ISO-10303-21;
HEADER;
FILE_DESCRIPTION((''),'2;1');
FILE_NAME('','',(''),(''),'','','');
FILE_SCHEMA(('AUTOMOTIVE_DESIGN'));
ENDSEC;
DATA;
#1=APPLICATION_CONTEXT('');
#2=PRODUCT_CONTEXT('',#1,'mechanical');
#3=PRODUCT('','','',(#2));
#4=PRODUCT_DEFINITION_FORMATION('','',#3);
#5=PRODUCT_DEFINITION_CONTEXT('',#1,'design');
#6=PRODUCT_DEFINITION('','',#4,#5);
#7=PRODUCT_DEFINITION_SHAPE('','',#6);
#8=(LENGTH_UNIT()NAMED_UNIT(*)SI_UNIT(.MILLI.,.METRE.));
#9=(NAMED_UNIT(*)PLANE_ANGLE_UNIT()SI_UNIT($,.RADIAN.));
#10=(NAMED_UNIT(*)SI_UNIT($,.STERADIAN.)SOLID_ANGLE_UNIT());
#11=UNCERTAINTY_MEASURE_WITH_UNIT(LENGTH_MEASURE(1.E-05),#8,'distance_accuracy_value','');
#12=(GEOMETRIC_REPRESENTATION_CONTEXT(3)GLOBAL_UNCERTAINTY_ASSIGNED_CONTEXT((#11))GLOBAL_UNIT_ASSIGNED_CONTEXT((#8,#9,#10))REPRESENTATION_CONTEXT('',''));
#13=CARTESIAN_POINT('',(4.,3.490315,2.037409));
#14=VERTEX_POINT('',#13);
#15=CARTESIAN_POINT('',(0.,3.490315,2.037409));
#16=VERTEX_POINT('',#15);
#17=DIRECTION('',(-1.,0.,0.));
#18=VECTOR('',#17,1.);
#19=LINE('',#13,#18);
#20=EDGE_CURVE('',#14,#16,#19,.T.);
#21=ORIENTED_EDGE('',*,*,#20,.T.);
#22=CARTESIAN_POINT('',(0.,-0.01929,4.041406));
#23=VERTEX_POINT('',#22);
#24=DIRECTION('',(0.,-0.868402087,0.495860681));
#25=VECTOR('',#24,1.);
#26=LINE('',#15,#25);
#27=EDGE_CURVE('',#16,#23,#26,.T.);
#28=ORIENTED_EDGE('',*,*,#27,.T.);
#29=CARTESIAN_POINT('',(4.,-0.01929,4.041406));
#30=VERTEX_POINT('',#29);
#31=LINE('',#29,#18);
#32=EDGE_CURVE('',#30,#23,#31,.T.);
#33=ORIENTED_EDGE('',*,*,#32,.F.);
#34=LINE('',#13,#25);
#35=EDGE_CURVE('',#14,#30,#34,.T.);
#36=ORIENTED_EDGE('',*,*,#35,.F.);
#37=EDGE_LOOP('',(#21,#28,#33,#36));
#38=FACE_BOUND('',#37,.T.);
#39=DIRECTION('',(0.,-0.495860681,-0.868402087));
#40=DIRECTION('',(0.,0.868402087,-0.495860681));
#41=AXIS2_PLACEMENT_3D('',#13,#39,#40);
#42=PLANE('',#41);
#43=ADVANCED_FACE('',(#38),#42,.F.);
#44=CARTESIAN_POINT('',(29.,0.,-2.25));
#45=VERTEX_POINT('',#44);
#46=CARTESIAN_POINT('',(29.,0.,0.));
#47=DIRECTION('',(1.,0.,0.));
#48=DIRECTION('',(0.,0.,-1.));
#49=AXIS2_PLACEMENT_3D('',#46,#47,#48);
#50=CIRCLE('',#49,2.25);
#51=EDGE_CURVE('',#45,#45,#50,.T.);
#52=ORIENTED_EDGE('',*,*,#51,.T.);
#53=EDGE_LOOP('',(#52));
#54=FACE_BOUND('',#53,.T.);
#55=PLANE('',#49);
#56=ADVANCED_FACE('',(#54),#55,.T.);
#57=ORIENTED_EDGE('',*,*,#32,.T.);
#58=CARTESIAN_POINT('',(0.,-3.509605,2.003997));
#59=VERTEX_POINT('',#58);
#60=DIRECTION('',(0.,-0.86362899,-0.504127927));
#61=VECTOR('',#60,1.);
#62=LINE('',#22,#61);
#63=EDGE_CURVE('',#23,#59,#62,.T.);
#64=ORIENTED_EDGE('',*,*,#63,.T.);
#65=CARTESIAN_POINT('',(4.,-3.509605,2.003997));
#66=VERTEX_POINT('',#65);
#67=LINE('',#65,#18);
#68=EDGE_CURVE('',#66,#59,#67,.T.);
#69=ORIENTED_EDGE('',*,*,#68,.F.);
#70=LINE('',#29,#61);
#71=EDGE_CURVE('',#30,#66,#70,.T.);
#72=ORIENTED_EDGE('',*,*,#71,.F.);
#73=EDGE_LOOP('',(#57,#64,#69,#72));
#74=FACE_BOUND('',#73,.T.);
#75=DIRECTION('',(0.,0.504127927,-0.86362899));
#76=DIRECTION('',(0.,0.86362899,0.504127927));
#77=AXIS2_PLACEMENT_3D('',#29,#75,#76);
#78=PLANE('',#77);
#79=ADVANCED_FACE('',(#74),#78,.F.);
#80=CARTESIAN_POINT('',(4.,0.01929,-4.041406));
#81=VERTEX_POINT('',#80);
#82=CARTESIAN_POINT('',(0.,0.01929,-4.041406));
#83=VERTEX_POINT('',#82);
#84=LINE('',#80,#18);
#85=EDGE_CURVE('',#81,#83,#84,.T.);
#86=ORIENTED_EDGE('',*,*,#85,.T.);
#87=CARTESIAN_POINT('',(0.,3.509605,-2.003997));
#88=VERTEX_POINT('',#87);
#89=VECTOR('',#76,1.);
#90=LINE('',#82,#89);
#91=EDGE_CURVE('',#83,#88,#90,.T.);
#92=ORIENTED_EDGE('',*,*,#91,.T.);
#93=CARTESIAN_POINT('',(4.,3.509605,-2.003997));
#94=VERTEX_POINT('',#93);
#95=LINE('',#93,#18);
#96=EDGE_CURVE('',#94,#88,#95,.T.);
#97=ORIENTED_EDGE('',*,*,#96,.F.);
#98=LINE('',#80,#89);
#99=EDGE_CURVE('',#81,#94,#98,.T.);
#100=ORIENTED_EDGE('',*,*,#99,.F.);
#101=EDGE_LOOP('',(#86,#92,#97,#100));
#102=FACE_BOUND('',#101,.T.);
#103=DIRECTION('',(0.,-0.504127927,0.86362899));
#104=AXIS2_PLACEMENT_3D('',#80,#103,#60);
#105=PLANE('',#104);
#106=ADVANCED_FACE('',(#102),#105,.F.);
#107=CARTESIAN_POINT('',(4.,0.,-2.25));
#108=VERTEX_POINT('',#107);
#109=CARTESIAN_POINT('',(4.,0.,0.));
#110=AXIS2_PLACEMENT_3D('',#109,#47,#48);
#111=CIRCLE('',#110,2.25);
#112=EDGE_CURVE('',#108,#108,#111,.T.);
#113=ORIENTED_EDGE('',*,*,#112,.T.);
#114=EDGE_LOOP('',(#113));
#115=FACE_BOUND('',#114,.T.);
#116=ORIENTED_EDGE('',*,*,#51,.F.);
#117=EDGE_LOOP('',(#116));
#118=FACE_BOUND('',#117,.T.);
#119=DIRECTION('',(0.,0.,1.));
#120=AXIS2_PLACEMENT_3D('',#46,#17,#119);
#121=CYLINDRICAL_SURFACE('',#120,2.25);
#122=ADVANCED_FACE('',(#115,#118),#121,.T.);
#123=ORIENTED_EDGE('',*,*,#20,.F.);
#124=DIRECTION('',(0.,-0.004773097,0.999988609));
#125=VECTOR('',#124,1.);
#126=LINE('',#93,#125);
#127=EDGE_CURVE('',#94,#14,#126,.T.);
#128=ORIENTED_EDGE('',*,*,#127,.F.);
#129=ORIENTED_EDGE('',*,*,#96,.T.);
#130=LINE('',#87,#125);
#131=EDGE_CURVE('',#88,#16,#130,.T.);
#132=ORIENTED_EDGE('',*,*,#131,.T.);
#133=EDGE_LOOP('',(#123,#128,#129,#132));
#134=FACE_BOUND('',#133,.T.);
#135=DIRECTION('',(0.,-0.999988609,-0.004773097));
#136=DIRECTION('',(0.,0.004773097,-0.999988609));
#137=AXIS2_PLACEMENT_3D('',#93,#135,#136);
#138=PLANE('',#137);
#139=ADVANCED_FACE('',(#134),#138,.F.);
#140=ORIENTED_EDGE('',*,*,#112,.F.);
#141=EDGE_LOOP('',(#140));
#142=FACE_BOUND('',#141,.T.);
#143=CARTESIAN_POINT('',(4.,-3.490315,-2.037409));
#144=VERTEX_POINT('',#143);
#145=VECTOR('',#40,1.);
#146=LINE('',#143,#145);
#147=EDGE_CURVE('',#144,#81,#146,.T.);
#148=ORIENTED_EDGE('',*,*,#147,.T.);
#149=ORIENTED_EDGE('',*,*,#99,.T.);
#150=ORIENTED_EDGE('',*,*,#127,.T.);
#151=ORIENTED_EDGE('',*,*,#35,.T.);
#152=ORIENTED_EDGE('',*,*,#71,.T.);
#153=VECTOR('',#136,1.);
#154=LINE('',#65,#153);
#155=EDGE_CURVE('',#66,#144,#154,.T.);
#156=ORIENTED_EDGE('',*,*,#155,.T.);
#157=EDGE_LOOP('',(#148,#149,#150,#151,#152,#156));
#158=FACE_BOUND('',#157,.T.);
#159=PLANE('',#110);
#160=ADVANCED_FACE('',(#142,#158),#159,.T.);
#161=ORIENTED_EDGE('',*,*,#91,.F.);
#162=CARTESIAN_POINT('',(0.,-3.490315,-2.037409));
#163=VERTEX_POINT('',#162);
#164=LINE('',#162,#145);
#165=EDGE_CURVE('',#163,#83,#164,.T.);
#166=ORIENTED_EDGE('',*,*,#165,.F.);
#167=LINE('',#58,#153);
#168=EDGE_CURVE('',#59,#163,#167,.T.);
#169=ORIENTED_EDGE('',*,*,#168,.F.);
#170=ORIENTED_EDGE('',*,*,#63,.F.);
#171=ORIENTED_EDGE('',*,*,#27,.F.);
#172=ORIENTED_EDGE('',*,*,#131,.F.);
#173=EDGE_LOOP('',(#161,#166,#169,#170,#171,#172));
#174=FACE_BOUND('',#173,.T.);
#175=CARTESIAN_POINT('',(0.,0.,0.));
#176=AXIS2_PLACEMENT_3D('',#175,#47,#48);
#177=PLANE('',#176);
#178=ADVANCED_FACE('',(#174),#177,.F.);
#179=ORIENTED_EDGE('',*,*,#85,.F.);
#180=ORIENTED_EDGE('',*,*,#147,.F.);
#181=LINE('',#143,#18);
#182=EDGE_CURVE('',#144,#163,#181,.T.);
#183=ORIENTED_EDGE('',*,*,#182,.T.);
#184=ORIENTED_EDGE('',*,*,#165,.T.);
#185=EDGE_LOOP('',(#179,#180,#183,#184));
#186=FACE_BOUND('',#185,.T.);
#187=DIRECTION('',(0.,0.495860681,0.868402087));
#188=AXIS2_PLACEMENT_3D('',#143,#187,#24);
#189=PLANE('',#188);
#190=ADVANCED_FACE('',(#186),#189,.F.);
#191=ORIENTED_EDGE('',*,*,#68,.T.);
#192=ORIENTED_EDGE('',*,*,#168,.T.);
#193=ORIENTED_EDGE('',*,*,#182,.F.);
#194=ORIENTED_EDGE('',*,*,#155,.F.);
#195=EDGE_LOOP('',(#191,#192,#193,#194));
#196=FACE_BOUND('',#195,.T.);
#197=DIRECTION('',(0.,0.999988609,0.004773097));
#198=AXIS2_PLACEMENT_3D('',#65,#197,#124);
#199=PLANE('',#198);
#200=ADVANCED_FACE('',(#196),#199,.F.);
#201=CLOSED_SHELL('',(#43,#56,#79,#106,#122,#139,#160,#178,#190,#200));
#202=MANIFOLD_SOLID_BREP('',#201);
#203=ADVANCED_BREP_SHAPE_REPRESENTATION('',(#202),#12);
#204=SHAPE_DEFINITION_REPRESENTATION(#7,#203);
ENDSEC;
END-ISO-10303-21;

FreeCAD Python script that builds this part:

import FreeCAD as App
import Part
import Sketcher
from FreeCAD import Vector

doc = App.newDocument("Part")
body = doc.addObject("PartDesign::Body", "Body")

# Sketch on YZ plane
sketch1 = body.newObject("Sketcher::SketchObject", "Sketch")
sketch1.AttachmentSupport = (doc.getObject("YZ_Plane"), [""])
sketch1.MapMode = "FlatFace"
sketch1.addGeometry([
    Part.LineSegment(Vector(-3.490315, -2.037409, 0), Vector(0.01929, -4.041406, 0)),  # 0
    Part.LineSegment(Vector(0.01929, -4.041406, 0), Vector(3.509605, -2.003997, 0)),  # 1
    Part.LineSegment(Vector(3.509605, -2.003997, 0), Vector(3.490315, 2.037409, 0)),  # 2
    Part.LineSegment(Vector(3.490315, 2.037409, 0), Vector(-0.01929, 4.041406, 0)),  # 3
    Part.LineSegment(Vector(-0.01929, 4.041406, 0), Vector(-3.509605, 2.003997, 0)),  # 4
    Part.LineSegment(Vector(-3.509605, 2.003997, 0), Vector(-3.490315, -2.037409, 0)),  # 5
], False)
sketch1.addConstraint([
    Sketcher.Constraint("Coincident", 0, 2, 1, 1),
    Sketcher.Constraint("Coincident", 1, 2, 2, 1),
    Sketcher.Constraint("Coincident", 2, 2, 3, 1),
    Sketcher.Constraint("Coincident", 3, 2, 4, 1),
    Sketcher.Constraint("Coincident", 4, 2, 5, 1),
    Sketcher.Constraint("Coincident", 5, 2, 0, 1),
    Sketcher.Constraint("Symmetric", 0, 2, 3, 2, -1, 1),
    Sketcher.Constraint("Symmetric", 1, 2, 4, 2, -1, 1),
    Sketcher.Constraint("Symmetric", 2, 2, 5, 2, -1, 1),
    Sketcher.Constraint("Equal", 0, 1),
    Sketcher.Constraint("Equal", 1, 2),
    Sketcher.Constraint("Distance", 0, 4.041452),
    Sketcher.Constraint("DistanceX", -1, 1, 0, 2, 0.01929),
    Sketcher.Constraint("DistanceY", -1, 1, 2, 2, 2.037409),
    Sketcher.Constraint("DistanceY", 0, 2, 1, 2, 2.037409),
])
pad1 = body.newObject("PartDesign::Pad", "Pad")
pad1.Profile = sketch1
pad1.Length = 4

# Sketch on YZ plane
sketch2 = body.newObject("Sketcher::SketchObject", "Sketch001")
sketch2.AttachmentSupport = (doc.getObject("YZ_Plane"), [""])
sketch2.MapMode = "FlatFace"
sketch2.AttachmentOffset = App.Placement(Vector(0, 0, 4), App.Rotation())
sketch2.addGeometry(Part.Circle(Vector(0, 0, 0), Vector(0, 0, 1), 2.25), False)
sketch2.addConstraint([
    Sketcher.Constraint("Coincident", 0, 3, -1, 1),
    Sketcher.Constraint("Diameter", 0, 4.5),
])
pad2 = body.newObject("PartDesign::Pad", "Pad001")
pad2.Profile = sketch2
pad2.Length = 25

doc.recompute()
